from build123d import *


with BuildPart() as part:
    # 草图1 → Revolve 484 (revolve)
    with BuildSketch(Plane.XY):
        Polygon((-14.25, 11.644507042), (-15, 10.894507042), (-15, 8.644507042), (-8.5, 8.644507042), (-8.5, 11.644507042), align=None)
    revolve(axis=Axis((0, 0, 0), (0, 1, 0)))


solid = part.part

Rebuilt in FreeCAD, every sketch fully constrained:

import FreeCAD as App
import Part
import Sketcher
Q = App.Units.Quantity

doc = App.newDocument("Part")
body = doc.addObject("PartDesign::Body", "Body")

# Sketch on XY plane
sketch1 = body.newObject("Sketcher::SketchObject", "Sketch")
sketch1.AttachmentSupport = (doc.getObject("XY_Plane"), [""])
sketch1.MapMode = "FlatFace"
sketch1.addGeometry([
    Part.LineSegment(App.Vector(-14.25, 11.644507, 0), App.Vector(-15, 10.894507, 0)),  # 0
    Part.LineSegment(App.Vector(-15, 10.894507, 0), App.Vector(-15, 8.644507, 0)),  # 1
    Part.LineSegment(App.Vector(-15, 8.644507, 0), App.Vector(-8.5, 8.644507, 0)),  # 2
    Part.LineSegment(App.Vector(-8.5, 8.644507, 0), App.Vector(-8.5, 11.644507, 0)),  # 3
    Part.LineSegment(App.Vector(-8.5, 11.644507, 0), App.Vector(-14.25, 11.644507, 0)),  # 4
], False)
sketch1.addConstraint([
    Sketcher.Constraint("Coincident", 0, 2, 1, 1),
    Sketcher.Constraint("Coincident", 1, 2, 2, 1),
    Sketcher.Constraint("Coincident", 2, 2, 3, 1),
    Sketcher.Constraint("Coincident", 3, 2, 4, 1),
    Sketcher.Constraint("Coincident", 4, 2, 0, 1),
    Sketcher.Constraint("Vertical", 1),
    Sketcher.Constraint("Horizontal", 2),
    Sketcher.Constraint("Vertical", 3),
    Sketcher.Constraint("Horizontal", 4),
    Sketcher.Constraint("DistanceY", 3, 1, 3, 2, 3.0),
    Sketcher.Constraint("Angle", 0, Q("-135 deg")),
    Sketcher.Constraint("DistanceX", 2, 1, 2, 2, 6.5),
    Sketcher.Constraint("DistanceX", 0, 2, -1, 1, 15.0),
    Sketcher.Constraint("DistanceX", 4, 2, 4, 1, 5.75),
    Sketcher.Constraint("DistanceY", -1, 1, 0, 2, 10.894507),
])
revolution = body.newObject("PartDesign::Revolution", "Revolution")
revolution.Profile = sketch1
revolution.ReferenceAxis = (sketch1, ["V_Axis"])
revolution.Angle = 360

doc.recompute()
